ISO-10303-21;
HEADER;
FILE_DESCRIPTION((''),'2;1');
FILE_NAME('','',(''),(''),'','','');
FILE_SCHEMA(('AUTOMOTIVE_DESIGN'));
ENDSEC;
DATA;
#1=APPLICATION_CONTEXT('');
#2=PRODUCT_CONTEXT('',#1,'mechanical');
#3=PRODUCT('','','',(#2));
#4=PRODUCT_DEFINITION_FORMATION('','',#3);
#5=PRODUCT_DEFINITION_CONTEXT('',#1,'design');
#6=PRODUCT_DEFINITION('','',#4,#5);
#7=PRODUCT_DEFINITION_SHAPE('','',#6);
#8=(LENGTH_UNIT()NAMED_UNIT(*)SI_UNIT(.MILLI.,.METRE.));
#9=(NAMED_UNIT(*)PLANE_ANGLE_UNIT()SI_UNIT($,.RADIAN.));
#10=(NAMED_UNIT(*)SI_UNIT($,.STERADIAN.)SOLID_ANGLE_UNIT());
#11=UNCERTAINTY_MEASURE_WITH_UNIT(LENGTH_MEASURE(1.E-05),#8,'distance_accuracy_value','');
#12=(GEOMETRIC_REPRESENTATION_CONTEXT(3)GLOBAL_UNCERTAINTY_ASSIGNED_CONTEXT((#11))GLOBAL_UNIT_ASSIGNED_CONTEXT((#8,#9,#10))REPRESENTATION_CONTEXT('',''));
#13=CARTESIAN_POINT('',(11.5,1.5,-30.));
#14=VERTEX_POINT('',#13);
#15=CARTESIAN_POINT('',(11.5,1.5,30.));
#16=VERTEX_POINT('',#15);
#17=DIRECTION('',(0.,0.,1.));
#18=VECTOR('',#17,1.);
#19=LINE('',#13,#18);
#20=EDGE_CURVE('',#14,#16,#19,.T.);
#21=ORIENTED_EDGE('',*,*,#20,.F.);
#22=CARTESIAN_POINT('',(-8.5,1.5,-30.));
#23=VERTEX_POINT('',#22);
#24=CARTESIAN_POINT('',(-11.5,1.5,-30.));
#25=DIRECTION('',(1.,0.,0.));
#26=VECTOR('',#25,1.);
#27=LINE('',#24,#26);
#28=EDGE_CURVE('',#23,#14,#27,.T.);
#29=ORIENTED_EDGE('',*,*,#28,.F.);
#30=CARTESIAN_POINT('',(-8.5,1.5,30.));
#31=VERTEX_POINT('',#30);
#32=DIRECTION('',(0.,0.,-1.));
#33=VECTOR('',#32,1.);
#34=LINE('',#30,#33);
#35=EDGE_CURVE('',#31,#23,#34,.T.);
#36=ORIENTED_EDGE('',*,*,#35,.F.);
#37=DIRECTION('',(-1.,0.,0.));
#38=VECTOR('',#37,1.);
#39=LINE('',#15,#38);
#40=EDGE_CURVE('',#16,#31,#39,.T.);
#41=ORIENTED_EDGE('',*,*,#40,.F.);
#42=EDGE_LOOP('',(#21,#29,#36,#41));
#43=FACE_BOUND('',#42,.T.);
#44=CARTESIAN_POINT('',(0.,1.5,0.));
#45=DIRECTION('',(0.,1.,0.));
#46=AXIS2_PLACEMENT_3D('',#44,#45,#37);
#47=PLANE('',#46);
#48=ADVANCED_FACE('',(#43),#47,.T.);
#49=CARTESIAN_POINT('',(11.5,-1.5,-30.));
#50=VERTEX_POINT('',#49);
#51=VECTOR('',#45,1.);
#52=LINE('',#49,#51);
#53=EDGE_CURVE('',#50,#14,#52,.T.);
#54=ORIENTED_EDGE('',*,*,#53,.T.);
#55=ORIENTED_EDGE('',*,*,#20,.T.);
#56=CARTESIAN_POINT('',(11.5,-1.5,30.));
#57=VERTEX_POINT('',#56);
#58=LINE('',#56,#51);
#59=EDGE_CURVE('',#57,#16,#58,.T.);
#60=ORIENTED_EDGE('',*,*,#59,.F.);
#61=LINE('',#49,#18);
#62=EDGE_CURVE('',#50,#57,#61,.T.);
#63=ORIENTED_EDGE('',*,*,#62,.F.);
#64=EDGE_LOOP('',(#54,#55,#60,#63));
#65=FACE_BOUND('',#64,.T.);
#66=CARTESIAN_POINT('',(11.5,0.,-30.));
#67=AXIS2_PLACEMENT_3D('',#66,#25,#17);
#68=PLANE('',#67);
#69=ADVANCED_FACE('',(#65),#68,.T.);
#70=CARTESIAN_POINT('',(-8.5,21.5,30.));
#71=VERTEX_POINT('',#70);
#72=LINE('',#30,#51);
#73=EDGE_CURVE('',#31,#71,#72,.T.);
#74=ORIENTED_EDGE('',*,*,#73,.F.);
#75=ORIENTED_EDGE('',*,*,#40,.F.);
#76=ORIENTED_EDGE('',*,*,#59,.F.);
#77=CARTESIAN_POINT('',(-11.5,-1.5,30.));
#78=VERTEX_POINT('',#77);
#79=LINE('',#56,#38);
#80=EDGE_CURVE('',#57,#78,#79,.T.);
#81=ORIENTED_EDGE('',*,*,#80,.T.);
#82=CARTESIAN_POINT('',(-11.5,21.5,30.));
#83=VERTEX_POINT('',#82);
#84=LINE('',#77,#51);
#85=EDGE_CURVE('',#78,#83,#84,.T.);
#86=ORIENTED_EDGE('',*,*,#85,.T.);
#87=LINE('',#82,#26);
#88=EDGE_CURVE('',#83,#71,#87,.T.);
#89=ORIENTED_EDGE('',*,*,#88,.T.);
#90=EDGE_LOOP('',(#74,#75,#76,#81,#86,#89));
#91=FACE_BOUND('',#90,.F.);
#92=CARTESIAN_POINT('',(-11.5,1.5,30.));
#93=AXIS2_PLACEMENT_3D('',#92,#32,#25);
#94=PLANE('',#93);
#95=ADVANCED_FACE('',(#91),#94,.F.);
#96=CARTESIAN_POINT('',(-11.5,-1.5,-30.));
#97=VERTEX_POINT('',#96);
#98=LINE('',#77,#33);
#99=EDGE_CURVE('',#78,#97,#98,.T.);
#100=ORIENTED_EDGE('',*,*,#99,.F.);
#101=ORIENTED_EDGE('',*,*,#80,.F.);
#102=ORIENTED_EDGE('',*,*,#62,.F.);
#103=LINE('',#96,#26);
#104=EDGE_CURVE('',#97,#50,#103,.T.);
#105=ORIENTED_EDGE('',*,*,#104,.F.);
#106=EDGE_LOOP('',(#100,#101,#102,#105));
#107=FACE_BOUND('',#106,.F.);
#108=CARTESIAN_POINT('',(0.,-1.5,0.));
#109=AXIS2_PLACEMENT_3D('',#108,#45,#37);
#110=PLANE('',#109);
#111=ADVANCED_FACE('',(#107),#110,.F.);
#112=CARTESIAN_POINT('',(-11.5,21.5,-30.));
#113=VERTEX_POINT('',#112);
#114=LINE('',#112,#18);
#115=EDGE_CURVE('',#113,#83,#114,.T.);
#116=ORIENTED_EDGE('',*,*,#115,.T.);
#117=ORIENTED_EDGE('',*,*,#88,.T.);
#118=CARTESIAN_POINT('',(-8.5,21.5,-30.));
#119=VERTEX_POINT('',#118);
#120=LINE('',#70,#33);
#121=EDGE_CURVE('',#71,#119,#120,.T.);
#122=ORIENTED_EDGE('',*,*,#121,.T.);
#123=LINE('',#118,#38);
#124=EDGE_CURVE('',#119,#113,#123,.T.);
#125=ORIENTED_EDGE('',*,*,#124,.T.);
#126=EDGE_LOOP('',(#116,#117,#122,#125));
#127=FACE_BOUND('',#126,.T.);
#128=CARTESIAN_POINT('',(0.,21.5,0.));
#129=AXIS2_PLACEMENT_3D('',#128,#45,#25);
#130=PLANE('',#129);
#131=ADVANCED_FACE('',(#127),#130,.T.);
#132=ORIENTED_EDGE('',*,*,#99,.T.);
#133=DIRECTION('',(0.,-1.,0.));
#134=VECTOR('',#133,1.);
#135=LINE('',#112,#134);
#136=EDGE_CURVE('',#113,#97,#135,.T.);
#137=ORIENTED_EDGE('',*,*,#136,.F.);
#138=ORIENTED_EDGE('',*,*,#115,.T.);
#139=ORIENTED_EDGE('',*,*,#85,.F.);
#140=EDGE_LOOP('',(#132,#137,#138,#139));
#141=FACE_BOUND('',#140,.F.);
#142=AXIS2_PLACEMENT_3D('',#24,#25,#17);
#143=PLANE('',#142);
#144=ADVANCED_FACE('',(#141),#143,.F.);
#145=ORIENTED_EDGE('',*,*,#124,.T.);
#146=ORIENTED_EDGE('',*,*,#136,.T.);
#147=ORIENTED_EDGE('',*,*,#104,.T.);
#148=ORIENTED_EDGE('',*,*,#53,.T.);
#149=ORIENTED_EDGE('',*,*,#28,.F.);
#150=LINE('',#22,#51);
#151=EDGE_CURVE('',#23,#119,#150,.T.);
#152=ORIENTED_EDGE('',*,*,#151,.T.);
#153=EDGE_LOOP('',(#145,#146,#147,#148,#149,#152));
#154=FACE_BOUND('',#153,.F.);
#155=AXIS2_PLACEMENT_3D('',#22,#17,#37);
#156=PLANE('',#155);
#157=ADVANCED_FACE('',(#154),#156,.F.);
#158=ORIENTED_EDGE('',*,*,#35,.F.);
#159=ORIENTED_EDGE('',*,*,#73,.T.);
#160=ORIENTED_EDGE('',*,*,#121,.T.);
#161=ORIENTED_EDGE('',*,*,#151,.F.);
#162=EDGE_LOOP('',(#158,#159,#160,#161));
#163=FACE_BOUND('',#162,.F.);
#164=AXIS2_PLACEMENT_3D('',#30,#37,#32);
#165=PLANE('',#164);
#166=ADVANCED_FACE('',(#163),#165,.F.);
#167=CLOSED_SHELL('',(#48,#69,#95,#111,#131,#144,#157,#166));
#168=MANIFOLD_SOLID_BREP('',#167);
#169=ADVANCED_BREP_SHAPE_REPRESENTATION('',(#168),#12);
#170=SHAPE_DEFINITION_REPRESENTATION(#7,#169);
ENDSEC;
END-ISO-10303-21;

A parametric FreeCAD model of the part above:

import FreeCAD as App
import Part
import Sketcher
from FreeCAD import Vector
Q = App.Units.Quantity


def add_polygon(sketch, points):
    """Adds a closed chain of lines whose ends are joined by coincident constraints."""
    first, n = sketch.GeometryCount, len(points)
    for a, b in zip(points, points[1:] + points[:1]):
        sketch.addGeometry(Part.LineSegment(App.Vector(*a, 0), App.Vector(*b, 0)), False)
    for i in range(n):
        sketch.addConstraint(Sketcher.Constraint("Coincident", first + i, 2, first + (i + 1) % n, 1))

doc = App.newDocument("Part")
body = doc.addObject("PartDesign::Body", "Body")

# Sketch on XZ plane
sketch1 = body.newObject("Sketcher::SketchObject", "Sketch")
sketch1.AttachmentSupport = (doc.getObject("XZ_Plane"), [""])
sketch1.MapMode = "FlatFace"
add_polygon(sketch1, [(-11.5, 30), (11.5, 30), (11.5, -30), (-11.5, -30)])  # lines 0-3
sketch1.addConstraint([
    Sketcher.Constraint("Horizontal", 0),
    Sketcher.Constraint("Vertical", 1),
    Sketcher.Constraint("Horizontal", 2),
    Sketcher.Constraint("Vertical", 3),
    Sketcher.Constraint("Symmetric", 0, 2, 2, 2, -1, 1),
    Sketcher.Constraint("DistanceX", 0, 1, 0, 2, Q("23 mm")),
    Sketcher.Constraint("DistanceY", 1, 2, 1, 1, Q("60 mm")),
])
pad1 = body.newObject("PartDesign::Pad", "Pad")
pad1.Profile = sketch1
pad1.Length = 3
pad1.Midplane = True

# Sketch on XZ plane
sketch2 = body.newObject("Sketcher::SketchObject", "Sketch001")
sketch2.AttachmentSupport = (doc.getObject("XZ_Plane"), [""])
sketch2.MapMode = "FlatFace"
sketch2.AttachmentOffset = App.Placement(Vector(0, 0, -1.5), App.Rotation())
add_polygon(sketch2, [(-11.5, -30), (-11.5, 30), (-8.5, 30), (-8.5, -30)])  # lines 0-3
sketch2.addConstraint([
    Sketcher.Constraint("Vertical", 0),
    Sketcher.Constraint("Horizontal", 1),
    Sketcher.Constraint("Vertical", 2),
    Sketcher.Constraint("Horizontal", 3),
    Sketcher.Constraint("DistanceX", 1, 1, 1, 2, Q("3 mm")),
    Sketcher.Constraint("DistanceY", 0, 1, 0, 2, Q("60 mm")),
    Sketcher.Constraint("DistanceY", -1, 1, 0, 2, Q("30 mm")),
    Sketcher.Constraint("DistanceX", 0, 2, -1, 1, Q("11.5 mm")),
])
pad2 = body.newObject("PartDesign::Pad", "Pad001")
pad2.Profile = sketch2
pad2.Length = 20
pad2.Reversed = True

doc.recompute()
